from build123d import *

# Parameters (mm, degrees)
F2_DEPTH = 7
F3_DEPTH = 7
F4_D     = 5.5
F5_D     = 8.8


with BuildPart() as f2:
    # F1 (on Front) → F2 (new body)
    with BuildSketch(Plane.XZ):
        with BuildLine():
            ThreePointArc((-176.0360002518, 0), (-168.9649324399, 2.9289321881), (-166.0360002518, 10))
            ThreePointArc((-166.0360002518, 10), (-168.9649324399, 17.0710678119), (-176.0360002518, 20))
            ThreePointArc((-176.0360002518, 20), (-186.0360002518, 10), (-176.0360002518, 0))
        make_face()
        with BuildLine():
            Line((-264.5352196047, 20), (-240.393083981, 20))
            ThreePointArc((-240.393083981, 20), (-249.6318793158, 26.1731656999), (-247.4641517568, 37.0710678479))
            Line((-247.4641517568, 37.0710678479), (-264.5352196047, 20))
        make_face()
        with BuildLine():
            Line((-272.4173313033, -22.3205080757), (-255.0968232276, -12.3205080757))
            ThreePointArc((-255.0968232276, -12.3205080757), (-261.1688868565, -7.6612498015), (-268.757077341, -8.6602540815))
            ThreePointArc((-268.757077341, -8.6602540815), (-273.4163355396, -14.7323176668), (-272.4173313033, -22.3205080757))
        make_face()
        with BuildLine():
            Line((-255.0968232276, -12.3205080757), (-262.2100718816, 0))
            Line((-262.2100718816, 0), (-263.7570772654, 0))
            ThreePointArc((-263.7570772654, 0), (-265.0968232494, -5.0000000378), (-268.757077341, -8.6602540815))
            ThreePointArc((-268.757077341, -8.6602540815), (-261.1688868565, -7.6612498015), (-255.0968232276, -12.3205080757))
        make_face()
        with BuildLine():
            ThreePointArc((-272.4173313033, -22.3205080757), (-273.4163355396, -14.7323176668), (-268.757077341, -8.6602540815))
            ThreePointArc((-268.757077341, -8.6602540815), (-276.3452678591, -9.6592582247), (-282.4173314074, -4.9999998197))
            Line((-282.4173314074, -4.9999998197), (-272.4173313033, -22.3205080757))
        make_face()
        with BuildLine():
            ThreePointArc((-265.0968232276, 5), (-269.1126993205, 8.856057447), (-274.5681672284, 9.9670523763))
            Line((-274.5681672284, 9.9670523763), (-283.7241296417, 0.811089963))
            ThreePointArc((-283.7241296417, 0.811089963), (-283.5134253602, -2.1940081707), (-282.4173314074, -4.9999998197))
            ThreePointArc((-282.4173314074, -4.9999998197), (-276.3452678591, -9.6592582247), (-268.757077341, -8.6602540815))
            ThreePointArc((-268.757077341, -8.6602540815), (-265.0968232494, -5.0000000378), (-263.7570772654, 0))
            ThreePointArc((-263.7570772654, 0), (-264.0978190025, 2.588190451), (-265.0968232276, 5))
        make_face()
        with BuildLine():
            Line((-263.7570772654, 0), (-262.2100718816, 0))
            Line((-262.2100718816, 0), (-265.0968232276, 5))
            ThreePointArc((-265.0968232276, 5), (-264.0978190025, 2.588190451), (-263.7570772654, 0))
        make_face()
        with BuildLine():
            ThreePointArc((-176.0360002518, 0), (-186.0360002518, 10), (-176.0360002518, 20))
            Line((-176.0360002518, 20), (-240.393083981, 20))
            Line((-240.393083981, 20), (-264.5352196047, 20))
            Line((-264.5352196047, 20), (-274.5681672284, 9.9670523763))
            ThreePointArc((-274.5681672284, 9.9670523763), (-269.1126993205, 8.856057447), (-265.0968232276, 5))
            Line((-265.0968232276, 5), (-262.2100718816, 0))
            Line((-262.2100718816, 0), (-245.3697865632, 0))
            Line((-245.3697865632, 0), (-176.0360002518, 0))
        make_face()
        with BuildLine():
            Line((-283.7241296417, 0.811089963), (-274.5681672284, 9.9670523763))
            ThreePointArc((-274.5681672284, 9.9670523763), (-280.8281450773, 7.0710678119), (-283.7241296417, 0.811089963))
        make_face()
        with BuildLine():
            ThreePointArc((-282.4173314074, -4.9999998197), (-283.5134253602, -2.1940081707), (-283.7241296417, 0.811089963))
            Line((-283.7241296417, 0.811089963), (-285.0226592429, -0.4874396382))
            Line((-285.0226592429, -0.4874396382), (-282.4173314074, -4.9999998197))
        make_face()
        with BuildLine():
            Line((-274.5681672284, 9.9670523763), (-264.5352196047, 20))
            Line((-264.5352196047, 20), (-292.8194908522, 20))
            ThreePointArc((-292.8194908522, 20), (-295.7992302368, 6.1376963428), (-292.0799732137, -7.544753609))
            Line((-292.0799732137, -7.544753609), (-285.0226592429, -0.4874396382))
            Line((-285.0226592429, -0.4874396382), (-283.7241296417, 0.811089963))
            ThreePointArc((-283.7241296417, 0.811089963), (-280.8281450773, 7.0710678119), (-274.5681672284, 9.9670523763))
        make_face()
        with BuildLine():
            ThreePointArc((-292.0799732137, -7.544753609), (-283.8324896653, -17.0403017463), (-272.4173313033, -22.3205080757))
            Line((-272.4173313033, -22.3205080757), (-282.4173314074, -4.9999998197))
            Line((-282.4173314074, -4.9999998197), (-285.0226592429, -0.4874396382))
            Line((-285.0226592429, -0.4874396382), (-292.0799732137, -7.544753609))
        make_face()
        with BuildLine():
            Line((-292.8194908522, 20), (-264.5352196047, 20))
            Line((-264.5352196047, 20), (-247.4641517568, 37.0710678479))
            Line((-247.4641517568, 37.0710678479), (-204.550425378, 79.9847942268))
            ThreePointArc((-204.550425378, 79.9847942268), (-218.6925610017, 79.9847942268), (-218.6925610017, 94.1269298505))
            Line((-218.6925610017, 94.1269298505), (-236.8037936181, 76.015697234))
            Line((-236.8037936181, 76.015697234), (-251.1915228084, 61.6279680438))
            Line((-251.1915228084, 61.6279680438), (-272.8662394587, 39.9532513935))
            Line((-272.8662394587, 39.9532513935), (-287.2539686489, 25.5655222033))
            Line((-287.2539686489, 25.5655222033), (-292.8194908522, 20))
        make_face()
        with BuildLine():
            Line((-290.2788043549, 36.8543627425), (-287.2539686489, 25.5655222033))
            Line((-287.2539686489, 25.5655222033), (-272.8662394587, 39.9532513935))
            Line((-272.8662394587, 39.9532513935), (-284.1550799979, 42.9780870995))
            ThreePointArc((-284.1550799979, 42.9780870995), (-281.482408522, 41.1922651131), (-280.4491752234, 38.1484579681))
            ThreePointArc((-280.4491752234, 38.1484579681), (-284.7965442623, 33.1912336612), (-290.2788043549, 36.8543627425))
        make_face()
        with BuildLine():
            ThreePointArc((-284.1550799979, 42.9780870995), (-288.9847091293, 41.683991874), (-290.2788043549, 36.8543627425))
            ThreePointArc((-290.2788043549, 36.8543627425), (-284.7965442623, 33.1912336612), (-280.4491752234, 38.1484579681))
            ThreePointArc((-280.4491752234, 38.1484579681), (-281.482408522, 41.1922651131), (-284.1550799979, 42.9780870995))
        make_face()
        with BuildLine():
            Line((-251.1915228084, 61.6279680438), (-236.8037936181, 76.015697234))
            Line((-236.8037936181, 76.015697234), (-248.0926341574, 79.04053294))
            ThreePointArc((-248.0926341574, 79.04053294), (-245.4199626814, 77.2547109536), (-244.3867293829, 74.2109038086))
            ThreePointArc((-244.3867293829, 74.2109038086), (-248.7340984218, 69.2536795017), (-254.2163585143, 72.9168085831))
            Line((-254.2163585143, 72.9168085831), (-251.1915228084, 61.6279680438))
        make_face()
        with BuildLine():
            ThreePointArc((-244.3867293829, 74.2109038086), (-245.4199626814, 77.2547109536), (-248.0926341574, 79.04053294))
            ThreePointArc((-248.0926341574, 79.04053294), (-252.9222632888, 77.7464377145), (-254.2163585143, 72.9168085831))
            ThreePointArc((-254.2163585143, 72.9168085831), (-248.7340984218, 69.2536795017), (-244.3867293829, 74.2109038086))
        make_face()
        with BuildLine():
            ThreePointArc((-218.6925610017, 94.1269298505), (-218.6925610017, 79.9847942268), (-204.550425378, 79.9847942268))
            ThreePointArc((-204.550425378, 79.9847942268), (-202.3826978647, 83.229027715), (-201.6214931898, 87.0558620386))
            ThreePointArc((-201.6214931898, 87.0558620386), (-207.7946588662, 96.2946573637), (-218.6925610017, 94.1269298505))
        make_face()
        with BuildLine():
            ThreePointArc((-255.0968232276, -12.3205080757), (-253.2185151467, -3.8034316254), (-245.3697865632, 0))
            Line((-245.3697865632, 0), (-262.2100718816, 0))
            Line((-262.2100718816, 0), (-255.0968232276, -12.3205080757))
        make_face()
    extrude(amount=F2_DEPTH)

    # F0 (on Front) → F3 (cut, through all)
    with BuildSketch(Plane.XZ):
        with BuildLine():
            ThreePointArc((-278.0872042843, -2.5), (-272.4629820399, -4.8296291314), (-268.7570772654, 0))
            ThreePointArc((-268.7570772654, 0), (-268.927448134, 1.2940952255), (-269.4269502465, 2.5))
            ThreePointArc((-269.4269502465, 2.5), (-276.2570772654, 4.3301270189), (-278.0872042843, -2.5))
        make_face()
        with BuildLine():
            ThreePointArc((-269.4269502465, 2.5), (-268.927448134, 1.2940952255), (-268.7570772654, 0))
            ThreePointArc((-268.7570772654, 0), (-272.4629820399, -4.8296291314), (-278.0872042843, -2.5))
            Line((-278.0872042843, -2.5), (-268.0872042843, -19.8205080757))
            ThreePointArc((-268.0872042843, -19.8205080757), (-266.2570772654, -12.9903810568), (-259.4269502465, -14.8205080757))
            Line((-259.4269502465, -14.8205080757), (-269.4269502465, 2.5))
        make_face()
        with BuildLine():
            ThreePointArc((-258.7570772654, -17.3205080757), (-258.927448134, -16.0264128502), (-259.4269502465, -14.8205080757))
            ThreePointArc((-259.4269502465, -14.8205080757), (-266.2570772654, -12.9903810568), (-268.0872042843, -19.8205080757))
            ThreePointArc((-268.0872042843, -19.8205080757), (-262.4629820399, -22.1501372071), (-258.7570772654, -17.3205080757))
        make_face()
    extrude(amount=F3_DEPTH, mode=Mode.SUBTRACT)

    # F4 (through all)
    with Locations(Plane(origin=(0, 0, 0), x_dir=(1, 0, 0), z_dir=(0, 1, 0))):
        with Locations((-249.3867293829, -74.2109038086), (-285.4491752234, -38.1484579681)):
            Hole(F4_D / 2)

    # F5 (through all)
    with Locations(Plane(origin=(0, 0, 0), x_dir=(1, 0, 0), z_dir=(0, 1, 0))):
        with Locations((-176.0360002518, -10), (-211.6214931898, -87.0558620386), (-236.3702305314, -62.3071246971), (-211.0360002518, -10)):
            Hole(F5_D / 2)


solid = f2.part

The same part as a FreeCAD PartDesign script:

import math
import FreeCAD as App
import Part
import Sketcher
from FreeCAD import Vector
Q = App.Units.Quantity

doc = App.newDocument("Part")
params = doc.addObject("Spreadsheet::Sheet", "Params")
for row, (alias, value) in enumerate([
    ("sketch1_radius", "10 mm"),
    ("sketch1_radius2", "5 mm"),
    ("sketch1_radius3", "30 mm"),
    ("sketch1_length", "20 mm"),
    ("pad1_length", "7 mm"),
    ("sketch2_radius", "5 mm"),
    ("sketch2_length", "20 mm"),
    ("sketch3_diameter", "5.5 mm"),
    ("hole_diameter", "5.5 mm"),
    ("sketch4_diameter", "8.8 mm"),
    ("hole2_diameter", "8.8 mm"),
], start=1):
    params.set(f"A{row}", alias)
    params.set(f"B{row}", "=" + value)
    params.setAlias(f"B{row}", alias)

body = doc.addObject("PartDesign::Body", "Body")

# Sketch on XZ plane
sketch1 = body.newObject("Sketcher::SketchObject", "Sketch")
sketch1.AttachmentSupport = (doc.getObject("XZ_Plane"), [""])
sketch1.MapMode = "FlatFace"
sketch1.addGeometry([
    Part.LineSegment(Vector(-245, 0, 0), Vector(-176, 0, 0)),  # 0
    Part.ArcOfCircle(Part.Circle(Vector(-176, 10, 0), Vector(0, 0, 1), 10), math.radians(-90), math.radians(0)),  # 1
    Part.ArcOfCircle(Part.Circle(Vector(-176, 10, 0), Vector(0, 0, 1), 10), math.radians(0), math.radians(90)),  # 2
    Part.LineSegment(Vector(-176, 20, 0), Vector(-240, 20, 0)),  # 3
    Part.ArcOfCircle(Part.Circle(Vector(-240, 30, 0), Vector(0, 0, 1), 10), math.radians(135), math.radians(270)),  # 4
    Part.LineSegment(Vector(-247, 37, 0), Vector(-205, 80, 0)),  # 5
    Part.ArcOfCircle(Part.Circle(Vector(-212, 87, 0), Vector(0, 0, 1), 10), math.radians(-45), math.radians(0)),  # 6
    Part.ArcOfCircle(Part.Circle(Vector(-212, 87, 0), Vector(0, 0, 1), 10), math.radians(0), math.radians(135)),  # 7
    Part.LineSegment(Vector(-219, 94, 0), Vector(-237, 76, 0)),  # 8
    Part.LineSegment(Vector(-237, 76, 0), Vector(-248, 79, 0)),  # 9
    Part.ArcOfCircle(Part.Circle(Vector(-249, 74, 0), Vector(0, 0, 1), 5), math.radians(75), math.radians(195)),  # 10
    Part.LineSegment(Vector(-254, 73, 0), Vector(-251, 62, 0)),  # 11
    Part.LineSegment(Vector(-251, 62, 0), Vector(-273, 40, 0)),  # 12
    Part.LineSegment(Vector(-273, 40, 0), Vector(-284, 43, 0)),  # 13
    Part.ArcOfCircle(Part.Circle(Vector(-285, 38, 0), Vector(0, 0, 1), 5), math.radians(75), math.radians(195)),  # 14
    Part.LineSegment(Vector(-290, 37, 0), Vector(-287, 26, 0)),  # 15
    Part.LineSegment(Vector(-287, 26, 0), Vector(-293, 20, 0)),  # 16
    Part.ArcOfCircle(Part.Circle(Vector(-266, 7, 0), Vector(0, 0, 1), 30), math.radians(154), math.radians(209)),  # 17
    Part.ArcOfCircle(Part.Circle(Vector(-266, 7, 0), Vector(0, 0, 1), 30), math.radians(-151), math.radians(-103)),  # 18
    Part.LineSegment(Vector(-272, -22, 0), Vector(-255, -12, 0)),  # 19
    Part.ArcOfCircle(Part.Circle(Vector(-245, -10, 0), Vector(0, 0, 1), 10), math.radians(90), math.radians(193)),  # 20
], False)
sketch1.addConstraint([
    Sketcher.Constraint("Tangent", 0, 2, 1, 1),
    Sketcher.Constraint("Tangent", 1, 2, 2, 1),
    Sketcher.Constraint("Tangent", 2, 2, 3, 1),
    Sketcher.Constraint("Tangent", 3, 2, 4, 2),
    Sketcher.Constraint("Tangent", 4, 1, 5, 1),
    Sketcher.Constraint("Tangent", 5, 2, 6, 1),
    Sketcher.Constraint("Tangent", 6, 2, 7, 1),
    Sketcher.Constraint("Tangent", 7, 2, 8, 1),
    Sketcher.Constraint("Coincident", 8, 2, 9, 1),
    Sketcher.Constraint("Tangent", 9, 2, 10, 1),
    Sketcher.Constraint("Tangent", 10, 2, 11, 1),
    Sketcher.Constraint("Coincident", 11, 2, 12, 1),
    Sketcher.Constraint("Coincident", 12, 2, 13, 1),
    Sketcher.Constraint("Tangent", 13, 2, 14, 1),
    Sketcher.Constraint("Tangent", 14, 2, 15, 1),
    Sketcher.Constraint("Coincident", 15, 2, 16, 1),
    Sketcher.Constraint("Coincident", 16, 2, 17, 1),
    Sketcher.Constraint("Tangent", 17, 2, 18, 1),
    Sketcher.Constraint("Coincident", 18, 2, 19, 1),
    Sketcher.Constraint("Coincident", 19, 2, 20, 2),
    Sketcher.Constraint("Tangent", 20, 1, 0, 1),
    Sketcher.Constraint("Horizontal", 0),
    Sketcher.Constraint("Horizontal", 3),
    Sketcher.Constraint("Equal", 1, 2),
    Sketcher.Constraint("Equal", 2, 4),
    Sketcher.Constraint("Equal", 4, 6),
    Sketcher.Constraint("Equal", 6, 7),
    Sketcher.Constraint("Equal", 10, 14),
    Sketcher.Constraint("Equal", 17, 18),
    Sketcher.Constraint("Equal", 7, 20),
    Sketcher.Constraint("PointOnObject", 0, 2, -1),
    Sketcher.Constraint("Parallel", 5, 8),
    Sketcher.Constraint("Parallel", 8, 12),
    Sketcher.Constraint("Parallel", 9, 13),
    Sketcher.Constraint("Parallel", 11, 15),
    Sketcher.Constraint("Parallel", 12, 16),
    Sketcher.Constraint("Horizontal", 2, 3, 1, 2),
    Sketcher.Constraint("Horizontal", 7, 3, 6, 2),
    Sketcher.Constraint("Horizontal", 3, 2, 16, 2),
    Sketcher.Constraint("Equal", 9, 11),
    Sketcher.Constraint("Equal", 11, 13),
    Sketcher.Constraint("Equal", 13, 15),
    Sketcher.Constraint("Radius", 1, Q("10 mm")),
    Sketcher.Constraint("Radius", 10, Q("5 mm")),
    Sketcher.Constraint("Radius", 17, Q("30 mm")),
    Sketcher.Constraint("Angle", 5, Q("45 deg")),
    Sketcher.Constraint("Angle", 9, Q("165 deg")),
    Sketcher.Constraint("Angle", 11, Q("-75 deg")),
    Sketcher.Constraint("Angle", 19, Q("30 deg")),
    Sketcher.Constraint("Distance", 19, Q("20 mm")),
    Sketcher.Constraint("DistanceX", 1, 3, -1, 1, Q("176.036 mm")),
    Sketcher.Constraint("DistanceX", 8, 2, 6, 3, Q("25.1823 mm")),
    Sketcher.Constraint("DistanceY", 4, 1, 11, 2, Q("24.5569 mm")),
    Sketcher.Constraint("Distance", 12, Q("30.652678 mm")),
    Sketcher.Constraint("DistanceX", 0, 1, 0, 2, Q("69.333786 mm")),
    Sketcher.Constraint("DistanceX", 3, 2, 3, 1, Q("64.357084 mm")),
    Sketcher.Constraint("DistanceX", 10, 3, -1, 1, Q("249.386729 mm")),
    Sketcher.Constraint("DistanceY", -1, 1, 17, 3, Q("6.942842 mm")),
    Sketcher.Constraint("DistanceX", 17, 2, 14, 2, Q("1.801169 mm")),
])
sketch1.setExpression("Constraints[42]", "Params.sketch1_radius")
sketch1.setExpression("Constraints[43]", "Params.sketch1_radius2")
sketch1.setExpression("Constraints[44]", "Params.sketch1_radius3")
sketch1.setExpression("Constraints[49]", "Params.sketch1_length")
pad1 = body.newObject("PartDesign::Pad", "Pad")
pad1.Profile = sketch1
pad1.setExpression("Length", "Params.pad1_length")

# Sketch on XZ plane
sketch2 = body.newObject("Sketcher::SketchObject", "Sketch001")
sketch2.AttachmentSupport = (doc.getObject("XZ_Plane"), [""])
sketch2.MapMode = "FlatFace"
sketch2.addGeometry([
    Part.ArcOfCircle(Part.Circle(Vector(-273.8, 0, 0), Vector(0, 0, 1), 5), math.radians(30), math.radians(210)),  # 0
    Part.LineSegment(Vector(-278.1, -2.5, 0), Vector(-268.1, -19.8, 0)),  # 1
    Part.ArcOfCircle(Part.Circle(Vector(-263.8, -17.3, 0), Vector(0, 0, 1), 5), math.radians(-150), math.radians(0)),  # 2
    Part.ArcOfCircle(Part.Circle(Vector(-263.8, -17.3, 0), Vector(0, 0, 1), 5), math.radians(0), math.radians(30)),  # 3
    Part.LineSegment(Vector(-259.4, -14.8, 0), Vector(-269.4, 2.5, 0)),  # 4
], False)
sketch2.addConstraint([
    Sketcher.Constraint("Tangent", 0, 2, 1, 1),
    Sketcher.Constraint("Tangent", 1, 2, 2, 1),
    Sketcher.Constraint("Tangent", 2, 2, 3, 1),
    Sketcher.Constraint("Tangent", 3, 2, 4, 1),
    Sketcher.Constraint("Tangent", 4, 2, 0, 1),
    Sketcher.Constraint("Equal", 0, 2),
    Sketcher.Constraint("Equal", 2, 3),
    Sketcher.Constraint("PointOnObject", 0, 3, -1),
    Sketcher.Constraint("Horizontal", 3, 3, 2, 2),
    Sketcher.Constraint("Radius", 0, Q("5 mm")),
    Sketcher.Constraint("Angle", 1, Q("-60 deg")),
    Sketcher.Constraint("Distance", 1, Q("20 mm")),
    Sketcher.Constraint("DistanceX", 3, 2, -1, 1, Q("259.42695 mm")),
])
sketch2.setExpression("Constraints[9]", "Params.sketch2_radius")
sketch2.setExpression("Constraints[11]", "Params.sketch2_length")
pocket1 = body.newObject("PartDesign::Pocket", "Pocket")
pocket1.Profile = sketch2
pocket1.Type = "ThroughAll"
pocket1.Reversed = True

# Sketch on XZ plane
sketch3 = body.newObject("Sketcher::SketchObject", "Sketch002")
sketch3.AttachmentSupport = (doc.getObject("XZ_Plane"), [""])
sketch3.MapMode = "FlatFace"
sketch3.addGeometry([
    Part.Circle(Vector(-249.4, 74.2, 0), Vector(0, 0, 1), 2.8),
    Part.Circle(Vector(-285.4, 38.1, 0), Vector(0, 0, 1), 2.8),
], False)
sketch3.addConstraint([
    Sketcher.Constraint("Equal", 0, 1),
    Sketcher.Constraint("Diameter", 0, Q("5.5 mm")),
    Sketcher.Constraint("DistanceX", 0, 3, -1, 1, Q("249.386729 mm")),
    Sketcher.Constraint("DistanceY", -1, 1, 0, 3, Q("74.210904 mm")),
    Sketcher.Constraint("DistanceX", 1, 3, -1, 1, Q("285.449175 mm")),
    Sketcher.Constraint("DistanceY", -1, 1, 1, 3, Q("38.148458 mm")),
])
sketch3.setExpression("Constraints[1]", "Params.sketch3_diameter")
doc.recompute()
hole = body.newObject("PartDesign::Hole", "Hole")
hole.Profile = sketch3
hole.ThreadType = "None"
hole.setExpression("Diameter", "Params.hole_diameter")
hole.DepthType = "ThroughAll"
hole.Reversed = True

# Sketch on XZ plane
sketch4 = body.newObject("Sketcher::SketchObject", "Sketch003")
sketch4.AttachmentSupport = (doc.getObject("XZ_Plane"), [""])
sketch4.MapMode = "FlatFace"
sketch4.addGeometry([
    Part.Circle(Vector(-176, 10, 0), Vector(0, 0, 1), 4.4),
    Part.Circle(Vector(-211.6, 87.1, 0), Vector(0, 0, 1), 4.4),
    Part.Circle(Vector(-236.4, 62.3, 0), Vector(0, 0, 1), 4.4),
    Part.Circle(Vector(-211, 10, 0), Vector(0, 0, 1), 4.4),
], False)
sketch4.addConstraint([
    Sketcher.Constraint("Equal", 0, 1),
    Sketcher.Constraint("Equal", 1, 2),
    Sketcher.Constraint("Equal", 2, 3),
    Sketcher.Constraint("Horizontal", 0, 3, 3, 3),
    Sketcher.Constraint("Diameter", 0, Q("8.8 mm")),
    Sketcher.Constraint("DistanceY", -1, 1, 0, 3, Q("10 mm")),
    Sketcher.Constraint("DistanceX", 3, 3, 0, 3, Q("35 mm")),
    Sketcher.Constraint("DistanceX", 0, 3, -1, 1, Q("176.036 mm")),
    Sketcher.Constraint("DistanceX", 2, 3, -1, 1, Q("236.370231 mm")),
    Sketcher.Constraint("DistanceX", 1, 3, -1, 1, Q("211.621493 mm")),
    Sketcher.Constraint("DistanceY", -1, 1, 1, 3, Q("87.055862 mm")),
    Sketcher.Constraint("DistanceY", -1, 1, 2, 3, Q("62.307125 mm")),
])
sketch4.setExpression("Constraints[4]", "Params.sketch4_diameter")
doc.recompute()
hole2 = body.newObject("PartDesign::Hole", "Hole001")
hole2.Profile = sketch4
hole2.ThreadType = "None"
hole2.setExpression("Diameter", "Params.hole2_diameter")
hole2.DepthType = "ThroughAll"
hole2.Reversed = True

doc.recompute()
